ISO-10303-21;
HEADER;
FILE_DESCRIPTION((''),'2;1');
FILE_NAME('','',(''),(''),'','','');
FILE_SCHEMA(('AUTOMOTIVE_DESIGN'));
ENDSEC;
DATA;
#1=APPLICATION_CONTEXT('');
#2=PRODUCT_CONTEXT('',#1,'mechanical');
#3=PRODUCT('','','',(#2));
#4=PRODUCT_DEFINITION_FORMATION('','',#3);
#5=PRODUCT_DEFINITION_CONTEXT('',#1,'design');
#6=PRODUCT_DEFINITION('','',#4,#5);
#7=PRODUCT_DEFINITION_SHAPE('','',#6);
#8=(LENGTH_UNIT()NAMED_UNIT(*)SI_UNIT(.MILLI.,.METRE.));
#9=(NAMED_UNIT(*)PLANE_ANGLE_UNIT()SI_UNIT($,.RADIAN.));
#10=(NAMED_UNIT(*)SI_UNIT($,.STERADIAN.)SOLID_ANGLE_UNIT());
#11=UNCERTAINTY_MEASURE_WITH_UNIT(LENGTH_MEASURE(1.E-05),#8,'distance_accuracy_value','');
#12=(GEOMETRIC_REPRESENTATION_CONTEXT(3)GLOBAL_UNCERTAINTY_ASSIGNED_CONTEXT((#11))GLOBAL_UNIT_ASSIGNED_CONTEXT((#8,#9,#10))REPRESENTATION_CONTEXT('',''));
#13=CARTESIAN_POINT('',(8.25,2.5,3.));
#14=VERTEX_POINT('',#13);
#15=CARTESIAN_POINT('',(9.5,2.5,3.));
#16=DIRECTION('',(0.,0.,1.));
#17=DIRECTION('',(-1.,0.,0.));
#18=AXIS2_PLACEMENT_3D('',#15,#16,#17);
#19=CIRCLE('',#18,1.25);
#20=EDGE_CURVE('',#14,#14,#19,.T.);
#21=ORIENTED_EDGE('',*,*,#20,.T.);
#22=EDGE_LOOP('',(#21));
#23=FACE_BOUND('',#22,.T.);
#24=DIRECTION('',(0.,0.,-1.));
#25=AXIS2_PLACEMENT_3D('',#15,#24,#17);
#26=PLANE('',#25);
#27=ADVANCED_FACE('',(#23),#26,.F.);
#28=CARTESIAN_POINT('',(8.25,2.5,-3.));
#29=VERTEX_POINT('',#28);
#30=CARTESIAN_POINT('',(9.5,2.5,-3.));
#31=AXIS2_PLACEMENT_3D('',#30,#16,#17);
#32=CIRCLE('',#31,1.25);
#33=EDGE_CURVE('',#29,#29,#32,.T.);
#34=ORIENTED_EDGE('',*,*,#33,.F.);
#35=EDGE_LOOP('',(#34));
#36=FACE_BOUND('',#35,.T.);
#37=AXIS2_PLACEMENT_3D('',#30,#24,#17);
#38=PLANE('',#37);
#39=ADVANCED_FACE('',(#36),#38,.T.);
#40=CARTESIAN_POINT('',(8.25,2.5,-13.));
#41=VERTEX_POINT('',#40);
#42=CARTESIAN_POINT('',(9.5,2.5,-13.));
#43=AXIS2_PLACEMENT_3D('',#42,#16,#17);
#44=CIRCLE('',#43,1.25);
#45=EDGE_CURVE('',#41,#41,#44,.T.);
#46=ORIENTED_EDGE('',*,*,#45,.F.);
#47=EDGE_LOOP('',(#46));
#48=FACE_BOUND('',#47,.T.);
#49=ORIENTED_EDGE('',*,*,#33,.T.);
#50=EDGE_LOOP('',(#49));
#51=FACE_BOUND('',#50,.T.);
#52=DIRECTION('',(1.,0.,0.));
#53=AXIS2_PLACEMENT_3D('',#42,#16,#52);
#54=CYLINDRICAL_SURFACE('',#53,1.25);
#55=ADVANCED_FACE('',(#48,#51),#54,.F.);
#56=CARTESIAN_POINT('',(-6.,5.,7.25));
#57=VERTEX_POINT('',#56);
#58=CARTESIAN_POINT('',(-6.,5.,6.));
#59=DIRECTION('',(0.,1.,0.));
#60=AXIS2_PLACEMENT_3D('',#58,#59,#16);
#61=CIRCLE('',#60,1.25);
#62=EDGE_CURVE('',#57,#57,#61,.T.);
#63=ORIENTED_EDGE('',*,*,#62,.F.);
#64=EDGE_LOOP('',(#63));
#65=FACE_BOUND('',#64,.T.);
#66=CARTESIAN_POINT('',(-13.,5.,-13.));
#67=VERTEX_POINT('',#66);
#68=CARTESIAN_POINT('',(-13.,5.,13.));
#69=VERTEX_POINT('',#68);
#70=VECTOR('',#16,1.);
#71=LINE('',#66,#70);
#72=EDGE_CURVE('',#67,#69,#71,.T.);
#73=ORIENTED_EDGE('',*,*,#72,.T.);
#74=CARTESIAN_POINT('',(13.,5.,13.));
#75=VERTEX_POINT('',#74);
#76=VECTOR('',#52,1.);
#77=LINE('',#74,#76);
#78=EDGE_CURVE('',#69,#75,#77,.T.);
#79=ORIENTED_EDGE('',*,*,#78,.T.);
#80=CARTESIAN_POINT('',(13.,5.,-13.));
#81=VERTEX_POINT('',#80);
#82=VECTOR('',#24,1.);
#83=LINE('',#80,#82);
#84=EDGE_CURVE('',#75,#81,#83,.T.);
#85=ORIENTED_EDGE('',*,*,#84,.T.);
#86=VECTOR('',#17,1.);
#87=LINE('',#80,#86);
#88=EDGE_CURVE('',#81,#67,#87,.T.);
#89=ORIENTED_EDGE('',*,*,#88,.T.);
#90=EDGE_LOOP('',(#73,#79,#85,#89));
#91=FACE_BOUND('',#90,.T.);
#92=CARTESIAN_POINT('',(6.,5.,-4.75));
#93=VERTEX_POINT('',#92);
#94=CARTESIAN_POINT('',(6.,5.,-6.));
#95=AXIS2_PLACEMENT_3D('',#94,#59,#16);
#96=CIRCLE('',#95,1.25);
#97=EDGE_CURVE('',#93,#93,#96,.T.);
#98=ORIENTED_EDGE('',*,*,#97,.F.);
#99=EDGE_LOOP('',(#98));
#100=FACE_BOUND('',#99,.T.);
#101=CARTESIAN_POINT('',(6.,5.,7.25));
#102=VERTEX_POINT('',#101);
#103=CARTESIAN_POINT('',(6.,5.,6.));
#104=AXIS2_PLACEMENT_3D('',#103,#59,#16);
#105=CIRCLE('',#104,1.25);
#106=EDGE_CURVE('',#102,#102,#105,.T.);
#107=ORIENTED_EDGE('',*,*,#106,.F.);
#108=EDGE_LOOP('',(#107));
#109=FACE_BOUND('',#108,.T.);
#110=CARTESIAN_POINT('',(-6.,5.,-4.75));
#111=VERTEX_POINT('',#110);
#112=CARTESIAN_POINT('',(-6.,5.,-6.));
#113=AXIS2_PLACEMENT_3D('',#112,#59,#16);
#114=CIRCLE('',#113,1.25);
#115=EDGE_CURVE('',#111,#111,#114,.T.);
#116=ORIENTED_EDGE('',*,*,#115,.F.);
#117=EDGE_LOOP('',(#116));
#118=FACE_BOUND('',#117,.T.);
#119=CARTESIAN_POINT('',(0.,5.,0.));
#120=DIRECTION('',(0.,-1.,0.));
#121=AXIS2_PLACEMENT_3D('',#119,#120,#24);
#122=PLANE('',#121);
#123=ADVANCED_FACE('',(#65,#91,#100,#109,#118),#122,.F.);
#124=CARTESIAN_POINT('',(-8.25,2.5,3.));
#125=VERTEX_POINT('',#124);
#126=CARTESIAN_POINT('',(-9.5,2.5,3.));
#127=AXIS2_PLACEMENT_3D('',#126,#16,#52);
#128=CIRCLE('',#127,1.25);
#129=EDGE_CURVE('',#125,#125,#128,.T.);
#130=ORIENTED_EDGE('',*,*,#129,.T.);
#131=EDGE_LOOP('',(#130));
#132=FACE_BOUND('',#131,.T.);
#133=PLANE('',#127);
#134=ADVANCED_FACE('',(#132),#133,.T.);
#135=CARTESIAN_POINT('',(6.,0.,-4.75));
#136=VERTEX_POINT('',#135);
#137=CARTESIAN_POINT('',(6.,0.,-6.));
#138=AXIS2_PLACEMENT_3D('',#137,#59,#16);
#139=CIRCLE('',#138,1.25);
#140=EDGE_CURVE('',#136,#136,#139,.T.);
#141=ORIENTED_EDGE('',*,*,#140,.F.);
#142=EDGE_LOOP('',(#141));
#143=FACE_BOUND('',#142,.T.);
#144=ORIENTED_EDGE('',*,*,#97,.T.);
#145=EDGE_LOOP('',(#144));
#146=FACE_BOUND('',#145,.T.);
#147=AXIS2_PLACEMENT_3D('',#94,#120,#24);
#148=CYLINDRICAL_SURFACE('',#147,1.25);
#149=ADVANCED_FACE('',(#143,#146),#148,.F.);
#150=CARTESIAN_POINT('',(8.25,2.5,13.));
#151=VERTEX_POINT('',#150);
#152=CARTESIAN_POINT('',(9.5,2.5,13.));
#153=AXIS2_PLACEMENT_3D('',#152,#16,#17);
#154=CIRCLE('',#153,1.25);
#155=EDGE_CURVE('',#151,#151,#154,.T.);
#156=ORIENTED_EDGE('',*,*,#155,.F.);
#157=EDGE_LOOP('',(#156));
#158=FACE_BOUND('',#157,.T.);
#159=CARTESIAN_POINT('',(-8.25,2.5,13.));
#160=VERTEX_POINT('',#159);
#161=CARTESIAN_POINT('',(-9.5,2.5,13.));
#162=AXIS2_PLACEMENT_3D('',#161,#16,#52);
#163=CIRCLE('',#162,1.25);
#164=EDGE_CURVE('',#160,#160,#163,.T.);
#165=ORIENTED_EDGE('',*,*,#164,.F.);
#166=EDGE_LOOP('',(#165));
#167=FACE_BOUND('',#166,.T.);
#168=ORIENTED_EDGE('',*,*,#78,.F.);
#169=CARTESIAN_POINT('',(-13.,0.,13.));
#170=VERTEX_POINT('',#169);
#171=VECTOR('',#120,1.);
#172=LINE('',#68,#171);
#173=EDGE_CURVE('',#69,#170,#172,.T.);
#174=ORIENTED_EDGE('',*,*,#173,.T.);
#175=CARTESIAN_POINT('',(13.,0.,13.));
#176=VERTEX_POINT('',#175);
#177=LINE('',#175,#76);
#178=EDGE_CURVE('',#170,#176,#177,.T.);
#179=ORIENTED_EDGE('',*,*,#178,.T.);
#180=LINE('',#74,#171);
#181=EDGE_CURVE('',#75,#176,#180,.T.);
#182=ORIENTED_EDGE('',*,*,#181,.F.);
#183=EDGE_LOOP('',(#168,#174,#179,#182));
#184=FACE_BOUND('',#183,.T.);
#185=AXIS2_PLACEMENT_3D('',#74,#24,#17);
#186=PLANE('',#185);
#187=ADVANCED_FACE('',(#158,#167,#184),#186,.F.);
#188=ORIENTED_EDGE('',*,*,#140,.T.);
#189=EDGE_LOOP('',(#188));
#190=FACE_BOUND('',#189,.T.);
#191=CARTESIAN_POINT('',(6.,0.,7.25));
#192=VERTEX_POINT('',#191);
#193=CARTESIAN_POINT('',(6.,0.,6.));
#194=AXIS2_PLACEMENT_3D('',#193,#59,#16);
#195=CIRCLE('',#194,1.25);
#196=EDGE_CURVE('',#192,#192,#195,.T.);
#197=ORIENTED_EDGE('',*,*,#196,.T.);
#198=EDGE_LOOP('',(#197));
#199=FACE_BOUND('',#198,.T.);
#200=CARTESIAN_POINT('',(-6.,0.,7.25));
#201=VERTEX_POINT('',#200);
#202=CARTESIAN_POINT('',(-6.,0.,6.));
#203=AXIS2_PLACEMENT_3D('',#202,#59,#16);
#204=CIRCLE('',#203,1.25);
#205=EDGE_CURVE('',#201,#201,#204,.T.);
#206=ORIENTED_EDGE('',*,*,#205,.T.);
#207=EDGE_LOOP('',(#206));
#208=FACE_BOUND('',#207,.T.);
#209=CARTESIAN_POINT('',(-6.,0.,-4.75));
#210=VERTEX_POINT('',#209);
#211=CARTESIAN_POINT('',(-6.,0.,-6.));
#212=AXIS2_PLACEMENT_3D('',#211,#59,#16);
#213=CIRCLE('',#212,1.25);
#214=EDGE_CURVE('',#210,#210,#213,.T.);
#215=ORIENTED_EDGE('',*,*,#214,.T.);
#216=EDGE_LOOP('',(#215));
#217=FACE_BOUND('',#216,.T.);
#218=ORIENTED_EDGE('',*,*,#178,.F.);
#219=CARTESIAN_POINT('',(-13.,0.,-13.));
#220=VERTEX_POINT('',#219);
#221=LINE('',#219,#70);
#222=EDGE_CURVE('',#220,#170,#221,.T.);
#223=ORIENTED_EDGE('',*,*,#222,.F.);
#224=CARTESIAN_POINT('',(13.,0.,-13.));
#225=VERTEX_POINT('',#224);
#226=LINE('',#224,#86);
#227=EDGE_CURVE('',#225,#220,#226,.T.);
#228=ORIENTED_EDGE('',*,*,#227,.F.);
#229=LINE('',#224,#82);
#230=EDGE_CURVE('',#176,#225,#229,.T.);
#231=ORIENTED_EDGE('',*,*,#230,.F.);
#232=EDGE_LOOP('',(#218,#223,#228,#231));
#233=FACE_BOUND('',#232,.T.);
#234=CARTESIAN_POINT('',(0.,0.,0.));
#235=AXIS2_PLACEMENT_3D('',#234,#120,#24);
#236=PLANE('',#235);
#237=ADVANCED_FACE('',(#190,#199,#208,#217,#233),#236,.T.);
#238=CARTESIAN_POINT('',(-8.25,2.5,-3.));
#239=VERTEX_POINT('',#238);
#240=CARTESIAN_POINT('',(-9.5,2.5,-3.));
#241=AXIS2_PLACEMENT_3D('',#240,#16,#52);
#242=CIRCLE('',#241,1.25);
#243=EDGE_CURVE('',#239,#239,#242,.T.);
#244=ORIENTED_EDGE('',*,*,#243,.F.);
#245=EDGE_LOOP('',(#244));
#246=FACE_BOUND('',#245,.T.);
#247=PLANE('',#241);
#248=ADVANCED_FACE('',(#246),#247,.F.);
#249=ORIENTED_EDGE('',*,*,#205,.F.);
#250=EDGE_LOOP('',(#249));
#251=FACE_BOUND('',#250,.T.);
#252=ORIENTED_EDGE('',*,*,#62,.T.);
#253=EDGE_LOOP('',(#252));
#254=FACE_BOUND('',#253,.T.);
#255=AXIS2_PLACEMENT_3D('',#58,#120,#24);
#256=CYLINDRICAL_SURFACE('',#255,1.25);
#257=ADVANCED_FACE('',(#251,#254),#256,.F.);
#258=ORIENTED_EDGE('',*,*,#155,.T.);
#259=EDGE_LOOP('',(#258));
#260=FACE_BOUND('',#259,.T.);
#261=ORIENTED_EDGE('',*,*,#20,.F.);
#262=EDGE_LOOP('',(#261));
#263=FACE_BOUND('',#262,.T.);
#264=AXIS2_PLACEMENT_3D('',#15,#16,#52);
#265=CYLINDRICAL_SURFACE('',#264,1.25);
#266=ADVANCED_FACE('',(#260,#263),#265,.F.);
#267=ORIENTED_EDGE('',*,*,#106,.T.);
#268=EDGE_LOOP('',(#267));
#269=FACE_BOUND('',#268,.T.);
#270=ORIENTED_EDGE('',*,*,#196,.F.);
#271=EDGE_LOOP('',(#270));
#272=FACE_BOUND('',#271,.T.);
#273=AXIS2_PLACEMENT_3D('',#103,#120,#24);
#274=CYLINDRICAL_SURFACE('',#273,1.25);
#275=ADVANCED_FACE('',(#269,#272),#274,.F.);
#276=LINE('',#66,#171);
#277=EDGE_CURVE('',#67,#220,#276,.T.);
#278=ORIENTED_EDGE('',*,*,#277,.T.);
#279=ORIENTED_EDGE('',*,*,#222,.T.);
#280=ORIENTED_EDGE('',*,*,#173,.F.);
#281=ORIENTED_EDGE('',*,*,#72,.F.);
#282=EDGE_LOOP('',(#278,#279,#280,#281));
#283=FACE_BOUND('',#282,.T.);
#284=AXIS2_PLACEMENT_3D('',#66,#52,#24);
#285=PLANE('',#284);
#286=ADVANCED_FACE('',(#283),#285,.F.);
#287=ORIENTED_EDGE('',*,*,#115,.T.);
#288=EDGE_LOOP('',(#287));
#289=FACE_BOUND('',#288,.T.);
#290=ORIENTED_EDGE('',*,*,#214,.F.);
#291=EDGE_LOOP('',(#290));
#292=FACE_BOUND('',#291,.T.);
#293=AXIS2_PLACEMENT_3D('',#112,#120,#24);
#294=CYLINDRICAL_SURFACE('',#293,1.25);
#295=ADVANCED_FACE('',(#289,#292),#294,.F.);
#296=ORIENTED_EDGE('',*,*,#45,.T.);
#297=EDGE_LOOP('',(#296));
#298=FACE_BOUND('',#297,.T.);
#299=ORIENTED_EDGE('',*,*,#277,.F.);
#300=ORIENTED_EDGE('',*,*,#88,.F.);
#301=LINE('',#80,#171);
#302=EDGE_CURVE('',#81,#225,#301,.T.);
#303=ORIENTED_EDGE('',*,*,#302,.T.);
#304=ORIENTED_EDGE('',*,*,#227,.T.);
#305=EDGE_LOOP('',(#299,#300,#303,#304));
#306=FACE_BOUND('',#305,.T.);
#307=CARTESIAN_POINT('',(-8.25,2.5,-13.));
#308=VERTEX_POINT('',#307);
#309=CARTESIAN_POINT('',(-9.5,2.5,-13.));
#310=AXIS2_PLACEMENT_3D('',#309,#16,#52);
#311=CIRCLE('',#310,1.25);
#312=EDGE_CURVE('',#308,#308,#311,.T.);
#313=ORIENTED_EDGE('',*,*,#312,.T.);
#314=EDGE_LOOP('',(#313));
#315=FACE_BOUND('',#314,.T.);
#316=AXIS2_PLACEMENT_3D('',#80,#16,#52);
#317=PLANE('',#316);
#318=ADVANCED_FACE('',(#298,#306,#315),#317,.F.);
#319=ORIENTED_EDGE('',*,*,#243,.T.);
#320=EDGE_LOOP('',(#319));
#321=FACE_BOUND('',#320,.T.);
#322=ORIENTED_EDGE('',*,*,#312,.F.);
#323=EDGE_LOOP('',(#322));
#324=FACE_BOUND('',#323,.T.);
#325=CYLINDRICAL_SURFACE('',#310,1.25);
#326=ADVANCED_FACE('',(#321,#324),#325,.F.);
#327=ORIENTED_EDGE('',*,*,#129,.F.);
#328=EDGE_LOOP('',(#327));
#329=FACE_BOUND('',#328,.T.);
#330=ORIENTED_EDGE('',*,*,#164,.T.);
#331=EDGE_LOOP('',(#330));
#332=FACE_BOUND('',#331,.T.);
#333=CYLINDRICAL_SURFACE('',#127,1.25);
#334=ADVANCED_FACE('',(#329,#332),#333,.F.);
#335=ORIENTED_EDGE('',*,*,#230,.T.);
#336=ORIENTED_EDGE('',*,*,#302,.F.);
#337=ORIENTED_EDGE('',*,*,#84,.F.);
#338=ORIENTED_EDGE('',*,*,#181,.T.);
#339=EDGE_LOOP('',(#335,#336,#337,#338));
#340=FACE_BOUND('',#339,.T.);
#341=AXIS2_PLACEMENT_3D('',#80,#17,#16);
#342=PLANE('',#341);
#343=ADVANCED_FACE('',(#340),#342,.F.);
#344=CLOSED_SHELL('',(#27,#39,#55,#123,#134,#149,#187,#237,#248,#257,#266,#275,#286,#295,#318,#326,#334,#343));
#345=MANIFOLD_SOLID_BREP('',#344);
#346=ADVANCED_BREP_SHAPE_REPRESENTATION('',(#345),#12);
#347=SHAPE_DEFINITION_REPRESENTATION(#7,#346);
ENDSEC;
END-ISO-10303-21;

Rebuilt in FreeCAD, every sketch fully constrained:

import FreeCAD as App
import Part
import Sketcher


def add_polygon(sketch, points):
    """Adds a closed chain of lines whose ends are joined by coincident constraints."""
    first, n = sketch.GeometryCount, len(points)
    for a, b in zip(points, points[1:] + points[:1]):
        sketch.addGeometry(Part.LineSegment(App.Vector(*a, 0), App.Vector(*b, 0)), False)
    for i in range(n):
        sketch.addConstraint(Sketcher.Constraint("Coincident", first + i, 2, first + (i + 1) % n, 1))

doc = App.newDocument("Part")
body = doc.addObject("PartDesign::Body", "Body")

# Sketch on XZ plane
sketch1 = body.newObject("Sketcher::SketchObject", "Sketch")
sketch1.AttachmentSupport = (doc.getObject("XZ_Plane"), [""])
sketch1.MapMode = "FlatFace"
add_polygon(sketch1, [(-13, -13), (-13, 13), (13, 13), (13, -13)])  # lines 0-3
sketch1.addGeometry(Part.Circle(App.Vector(-6, 6, 0), App.Vector(0, 0, 1), 1.25), False)  # 4
sketch1.addGeometry(Part.Circle(App.Vector(6, 6, 0), App.Vector(0, 0, 1), 1.25), False)  # 5
sketch1.addGeometry(Part.Circle(App.Vector(-6, -6, 0), App.Vector(0, 0, 1), 1.25), False)  # 6
sketch1.addGeometry(Part.Circle(App.Vector(6, -6, 0), App.Vector(0, 0, 1), 1.25), False)  # 7
sketch1.addConstraint([
    Sketcher.Constraint("Vertical", 0),
    Sketcher.Constraint("Horizontal", 1),
    Sketcher.Constraint("Vertical", 2),
    Sketcher.Constraint("Horizontal", 3),
    Sketcher.Constraint("Equal", 4, 5),
    Sketcher.Constraint("Equal", 5, 6),
    Sketcher.Constraint("Equal", 6, 7),
    Sketcher.Constraint("Symmetric", 5, 3, 6, 3, -1, 1),
    Sketcher.Constraint("Symmetric", 4, 3, 7, 3, -1, 1),
    Sketcher.Constraint("Symmetric", 0, 2, 2, 2, -1, 1),
    Sketcher.Constraint("Symmetric", 4, 3, 5, 3, -2),
    Sketcher.Constraint("Equal", 3, 0),
    Sketcher.Constraint("Diameter", 4, 2.5),
    Sketcher.Constraint("DistanceX", 1, 1, 1, 2, 26.0),
    Sketcher.Constraint("DistanceX", 4, 3, -1, 1, 6.0),
    Sketcher.Constraint("DistanceY", -1, 1, 4, 3, 6.0),
])
pad1 = body.newObject("PartDesign::Pad", "Pad")
pad1.Profile = sketch1
pad1.Length = 5
pad1.Reversed = True

# Sketch on XY plane
sketch2 = body.newObject("Sketcher::SketchObject", "Sketch001")
sketch2.AttachmentSupport = (doc.getObject("XY_Plane"), [""])
sketch2.MapMode = "FlatFace"
sketch2.AttachmentOffset = App.Placement(App.Vector(0, 0, 13), App.Rotation())
sketch2.addGeometry([
    Part.Circle(App.Vector(-9.5, 2.5, 0), App.Vector(0, 0, 1), 1.25),
    Part.Circle(App.Vector(9.5, 2.5, 0), App.Vector(0, 0, 1), 1.25),
], False)
sketch2.addConstraint([
    Sketcher.Constraint("Equal", 0, 1),
    Sketcher.Constraint("Symmetric", 0, 3, 1, 3, -2),
    Sketcher.Constraint("Diameter", 0, 2.5),
    Sketcher.Constraint("DistanceX", 0, 3, 1, 3, 19.0),
    Sketcher.Constraint("DistanceY", -1, 1, 0, 3, 2.5),
])
pocket1 = body.newObject("PartDesign::Pocket", "Pocket")
pocket1.Profile = sketch2
pocket1.Length = 10
doc.recompute()

linearpattern = body.newObject("PartDesign::LinearPattern", "LinearPattern")
linearpattern.Originals = [pocket1]
linearpattern.Direction = (doc.getObject("Z_Axis"), [""])
linearpattern.Mode = "offset"
linearpattern.Offset = 16
linearpattern.Occurrences = 2
linearpattern.Reversed = True
body.Tip = linearpattern

doc.recompute()
